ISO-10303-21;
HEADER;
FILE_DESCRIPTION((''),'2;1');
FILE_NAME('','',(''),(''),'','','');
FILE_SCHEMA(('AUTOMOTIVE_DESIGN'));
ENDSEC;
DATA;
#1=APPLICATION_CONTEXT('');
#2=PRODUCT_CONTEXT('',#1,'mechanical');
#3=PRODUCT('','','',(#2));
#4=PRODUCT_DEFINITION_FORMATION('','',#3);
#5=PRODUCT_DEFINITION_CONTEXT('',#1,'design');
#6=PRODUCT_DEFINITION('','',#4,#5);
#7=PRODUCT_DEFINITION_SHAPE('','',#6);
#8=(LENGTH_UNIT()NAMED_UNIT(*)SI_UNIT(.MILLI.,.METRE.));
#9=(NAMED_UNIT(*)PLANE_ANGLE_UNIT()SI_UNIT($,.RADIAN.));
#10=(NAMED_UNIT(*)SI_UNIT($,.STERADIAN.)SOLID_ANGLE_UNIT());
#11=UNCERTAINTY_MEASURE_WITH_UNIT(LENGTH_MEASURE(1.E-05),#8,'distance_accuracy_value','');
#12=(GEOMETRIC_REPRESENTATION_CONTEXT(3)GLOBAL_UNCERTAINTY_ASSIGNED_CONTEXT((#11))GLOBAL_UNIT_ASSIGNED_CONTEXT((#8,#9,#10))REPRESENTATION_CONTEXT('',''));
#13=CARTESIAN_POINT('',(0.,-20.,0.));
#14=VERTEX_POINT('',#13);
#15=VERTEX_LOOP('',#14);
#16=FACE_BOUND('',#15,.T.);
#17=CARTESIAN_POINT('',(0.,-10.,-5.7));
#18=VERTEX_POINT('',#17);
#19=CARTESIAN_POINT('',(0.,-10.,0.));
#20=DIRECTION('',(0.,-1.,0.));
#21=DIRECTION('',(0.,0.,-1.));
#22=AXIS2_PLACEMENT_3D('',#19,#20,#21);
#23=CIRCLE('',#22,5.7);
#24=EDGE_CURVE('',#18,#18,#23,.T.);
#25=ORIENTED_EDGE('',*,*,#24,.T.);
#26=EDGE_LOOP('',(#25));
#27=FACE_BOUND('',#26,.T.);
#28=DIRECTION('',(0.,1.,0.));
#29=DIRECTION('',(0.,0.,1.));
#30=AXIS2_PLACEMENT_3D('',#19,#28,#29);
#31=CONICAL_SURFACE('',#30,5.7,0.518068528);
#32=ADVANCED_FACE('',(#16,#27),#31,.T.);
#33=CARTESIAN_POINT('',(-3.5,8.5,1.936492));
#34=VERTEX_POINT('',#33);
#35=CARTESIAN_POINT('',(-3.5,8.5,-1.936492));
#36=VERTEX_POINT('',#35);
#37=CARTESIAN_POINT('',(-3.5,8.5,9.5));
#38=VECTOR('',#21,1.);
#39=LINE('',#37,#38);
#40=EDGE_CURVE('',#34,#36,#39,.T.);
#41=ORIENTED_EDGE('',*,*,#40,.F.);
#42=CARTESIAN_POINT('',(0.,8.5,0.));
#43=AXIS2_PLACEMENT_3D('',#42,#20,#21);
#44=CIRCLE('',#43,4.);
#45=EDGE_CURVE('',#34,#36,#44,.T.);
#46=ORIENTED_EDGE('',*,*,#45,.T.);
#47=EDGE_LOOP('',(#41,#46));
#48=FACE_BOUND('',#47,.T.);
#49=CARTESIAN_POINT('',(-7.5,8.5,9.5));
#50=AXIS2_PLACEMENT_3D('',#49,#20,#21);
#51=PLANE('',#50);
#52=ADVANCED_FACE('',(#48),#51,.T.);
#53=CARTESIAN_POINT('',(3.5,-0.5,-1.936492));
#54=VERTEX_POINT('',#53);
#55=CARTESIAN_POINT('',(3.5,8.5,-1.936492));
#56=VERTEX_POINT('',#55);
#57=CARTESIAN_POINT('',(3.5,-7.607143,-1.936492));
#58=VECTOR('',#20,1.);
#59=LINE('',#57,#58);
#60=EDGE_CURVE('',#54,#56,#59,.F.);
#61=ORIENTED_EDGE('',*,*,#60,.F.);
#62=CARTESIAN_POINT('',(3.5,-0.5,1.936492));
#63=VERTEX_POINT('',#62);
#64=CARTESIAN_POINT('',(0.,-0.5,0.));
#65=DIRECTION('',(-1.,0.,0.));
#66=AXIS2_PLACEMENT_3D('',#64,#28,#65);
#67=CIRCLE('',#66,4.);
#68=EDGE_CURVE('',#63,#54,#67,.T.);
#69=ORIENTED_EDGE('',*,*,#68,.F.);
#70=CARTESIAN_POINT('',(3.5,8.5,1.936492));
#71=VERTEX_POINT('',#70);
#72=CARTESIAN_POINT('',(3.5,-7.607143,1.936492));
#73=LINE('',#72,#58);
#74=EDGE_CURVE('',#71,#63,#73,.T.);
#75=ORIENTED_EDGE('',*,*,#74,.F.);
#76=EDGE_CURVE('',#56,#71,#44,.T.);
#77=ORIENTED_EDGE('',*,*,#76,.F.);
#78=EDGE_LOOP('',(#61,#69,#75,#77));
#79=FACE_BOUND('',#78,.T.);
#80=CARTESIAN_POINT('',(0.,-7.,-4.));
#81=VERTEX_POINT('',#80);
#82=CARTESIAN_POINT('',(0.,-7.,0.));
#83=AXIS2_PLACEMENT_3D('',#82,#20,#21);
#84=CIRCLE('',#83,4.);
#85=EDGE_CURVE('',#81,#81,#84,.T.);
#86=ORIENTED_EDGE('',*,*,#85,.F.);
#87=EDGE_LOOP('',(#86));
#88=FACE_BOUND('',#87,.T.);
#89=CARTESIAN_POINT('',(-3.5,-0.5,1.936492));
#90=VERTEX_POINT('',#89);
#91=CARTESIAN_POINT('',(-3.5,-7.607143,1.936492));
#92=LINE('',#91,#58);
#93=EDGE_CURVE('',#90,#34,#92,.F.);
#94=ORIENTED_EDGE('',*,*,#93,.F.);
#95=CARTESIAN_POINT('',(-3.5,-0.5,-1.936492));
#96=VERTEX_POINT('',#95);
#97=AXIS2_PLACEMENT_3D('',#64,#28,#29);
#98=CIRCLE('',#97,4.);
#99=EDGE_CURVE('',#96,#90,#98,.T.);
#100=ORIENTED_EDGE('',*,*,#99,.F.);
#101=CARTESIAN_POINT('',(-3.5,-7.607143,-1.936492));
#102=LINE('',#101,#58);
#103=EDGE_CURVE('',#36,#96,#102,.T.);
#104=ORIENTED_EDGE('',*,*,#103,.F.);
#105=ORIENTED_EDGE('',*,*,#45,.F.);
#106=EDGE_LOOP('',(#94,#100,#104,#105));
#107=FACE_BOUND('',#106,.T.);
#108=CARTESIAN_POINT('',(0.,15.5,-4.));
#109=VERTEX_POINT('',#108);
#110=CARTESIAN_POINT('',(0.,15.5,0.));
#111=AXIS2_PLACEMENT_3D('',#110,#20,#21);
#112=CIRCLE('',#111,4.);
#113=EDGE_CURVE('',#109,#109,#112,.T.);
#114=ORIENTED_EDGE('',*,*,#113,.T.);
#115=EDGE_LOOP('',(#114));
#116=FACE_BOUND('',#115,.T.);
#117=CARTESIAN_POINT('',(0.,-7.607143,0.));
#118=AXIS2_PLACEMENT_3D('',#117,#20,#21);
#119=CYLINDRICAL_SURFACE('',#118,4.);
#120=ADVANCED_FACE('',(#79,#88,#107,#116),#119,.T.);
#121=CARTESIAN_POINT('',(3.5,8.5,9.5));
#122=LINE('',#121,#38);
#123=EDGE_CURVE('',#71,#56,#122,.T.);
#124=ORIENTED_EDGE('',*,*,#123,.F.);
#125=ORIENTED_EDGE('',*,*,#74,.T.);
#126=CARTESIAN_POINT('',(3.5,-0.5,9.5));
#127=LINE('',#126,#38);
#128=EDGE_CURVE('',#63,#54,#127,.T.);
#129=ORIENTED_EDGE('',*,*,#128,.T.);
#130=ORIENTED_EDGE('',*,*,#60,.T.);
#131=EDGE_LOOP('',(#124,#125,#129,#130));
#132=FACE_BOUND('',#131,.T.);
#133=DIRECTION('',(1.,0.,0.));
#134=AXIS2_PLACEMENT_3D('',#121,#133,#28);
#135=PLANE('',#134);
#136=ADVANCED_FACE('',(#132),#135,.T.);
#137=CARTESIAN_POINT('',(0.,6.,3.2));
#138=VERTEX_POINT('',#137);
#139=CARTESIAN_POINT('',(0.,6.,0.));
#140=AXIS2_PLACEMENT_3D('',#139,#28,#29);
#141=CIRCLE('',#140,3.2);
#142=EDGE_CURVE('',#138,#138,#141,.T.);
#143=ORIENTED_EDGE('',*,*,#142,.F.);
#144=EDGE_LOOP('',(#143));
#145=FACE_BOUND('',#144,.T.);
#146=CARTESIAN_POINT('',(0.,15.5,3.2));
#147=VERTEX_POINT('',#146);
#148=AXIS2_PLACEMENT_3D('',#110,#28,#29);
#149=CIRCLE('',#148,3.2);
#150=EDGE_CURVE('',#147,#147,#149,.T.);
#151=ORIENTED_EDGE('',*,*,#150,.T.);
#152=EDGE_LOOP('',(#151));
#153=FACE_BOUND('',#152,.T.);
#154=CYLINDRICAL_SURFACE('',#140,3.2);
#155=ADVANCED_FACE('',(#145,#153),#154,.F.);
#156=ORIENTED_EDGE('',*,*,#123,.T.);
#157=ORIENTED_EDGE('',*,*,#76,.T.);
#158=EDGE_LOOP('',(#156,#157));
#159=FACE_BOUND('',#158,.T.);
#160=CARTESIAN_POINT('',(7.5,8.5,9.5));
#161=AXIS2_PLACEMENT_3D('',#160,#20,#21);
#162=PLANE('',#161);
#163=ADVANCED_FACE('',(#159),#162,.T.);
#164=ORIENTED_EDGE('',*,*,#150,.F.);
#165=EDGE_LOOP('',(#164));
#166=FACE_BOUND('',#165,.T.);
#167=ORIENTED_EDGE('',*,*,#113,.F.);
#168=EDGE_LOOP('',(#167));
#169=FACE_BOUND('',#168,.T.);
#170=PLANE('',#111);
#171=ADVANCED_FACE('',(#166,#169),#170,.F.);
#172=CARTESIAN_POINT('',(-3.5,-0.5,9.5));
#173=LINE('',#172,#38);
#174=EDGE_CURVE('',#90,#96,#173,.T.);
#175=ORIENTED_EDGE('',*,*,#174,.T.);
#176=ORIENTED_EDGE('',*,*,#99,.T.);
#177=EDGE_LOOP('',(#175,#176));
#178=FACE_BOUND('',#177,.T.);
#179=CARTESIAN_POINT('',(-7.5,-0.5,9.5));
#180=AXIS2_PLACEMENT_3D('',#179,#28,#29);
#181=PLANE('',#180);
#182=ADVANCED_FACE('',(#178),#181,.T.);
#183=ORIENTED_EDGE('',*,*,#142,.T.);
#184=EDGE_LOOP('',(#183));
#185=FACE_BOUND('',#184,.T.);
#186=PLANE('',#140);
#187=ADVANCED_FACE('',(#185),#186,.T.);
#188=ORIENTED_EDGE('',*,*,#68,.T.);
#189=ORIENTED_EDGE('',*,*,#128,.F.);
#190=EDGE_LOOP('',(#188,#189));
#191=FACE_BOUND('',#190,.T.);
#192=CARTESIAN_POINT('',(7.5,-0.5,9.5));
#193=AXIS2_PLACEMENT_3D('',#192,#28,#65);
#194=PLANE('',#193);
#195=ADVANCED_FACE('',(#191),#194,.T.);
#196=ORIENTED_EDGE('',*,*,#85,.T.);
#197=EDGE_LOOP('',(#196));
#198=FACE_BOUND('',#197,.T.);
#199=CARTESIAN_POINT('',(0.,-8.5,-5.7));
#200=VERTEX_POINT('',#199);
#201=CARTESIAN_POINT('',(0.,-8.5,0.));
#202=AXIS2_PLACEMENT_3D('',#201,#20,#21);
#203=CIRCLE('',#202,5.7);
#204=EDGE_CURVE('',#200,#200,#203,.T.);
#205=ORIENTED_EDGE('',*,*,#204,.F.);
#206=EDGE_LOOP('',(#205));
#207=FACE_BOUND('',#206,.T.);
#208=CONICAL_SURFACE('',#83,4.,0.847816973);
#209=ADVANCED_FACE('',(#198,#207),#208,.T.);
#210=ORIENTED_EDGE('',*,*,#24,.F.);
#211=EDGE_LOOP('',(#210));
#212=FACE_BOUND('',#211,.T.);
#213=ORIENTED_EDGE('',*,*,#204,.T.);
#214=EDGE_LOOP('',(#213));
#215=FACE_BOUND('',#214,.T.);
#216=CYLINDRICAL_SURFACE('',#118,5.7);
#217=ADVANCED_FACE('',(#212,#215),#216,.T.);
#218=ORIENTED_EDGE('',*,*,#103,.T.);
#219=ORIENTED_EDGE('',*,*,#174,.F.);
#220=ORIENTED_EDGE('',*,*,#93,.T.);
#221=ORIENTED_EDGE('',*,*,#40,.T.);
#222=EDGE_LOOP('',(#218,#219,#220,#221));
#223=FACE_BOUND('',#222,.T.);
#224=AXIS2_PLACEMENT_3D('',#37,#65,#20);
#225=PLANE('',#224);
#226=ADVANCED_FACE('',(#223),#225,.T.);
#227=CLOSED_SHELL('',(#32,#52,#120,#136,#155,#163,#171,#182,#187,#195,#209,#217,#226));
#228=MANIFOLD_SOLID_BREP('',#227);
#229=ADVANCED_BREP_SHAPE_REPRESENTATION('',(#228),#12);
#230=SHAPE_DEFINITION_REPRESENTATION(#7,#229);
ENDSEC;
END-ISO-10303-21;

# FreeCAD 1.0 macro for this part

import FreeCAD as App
import Part
import Sketcher
Q = App.Units.Quantity

doc = App.newDocument("Part")
params = doc.addObject("Spreadsheet::Sheet", "Params")
for row, (alias, value) in enumerate([
    ("sketch1_width", "4 mm"),
    ("sketch1_height", "22.5 mm"),
    ("sketch1_height2", "1.5 mm"),
    ("sketch1_height3", "35.5 mm"),
    ("revolution_angle", "360 deg"),
    ("sketch2_diameter", "6.4 mm"),
    ("pocket1_length", "9.5 mm"),
    ("sketch3_width", "4 mm"),
    ("sketch3_height", "9 mm"),
], start=1):
    params.set(f"A{row}", alias)
    params.set(f"B{row}", "=" + value)
    params.setAlias(f"B{row}", alias)

body = doc.addObject("PartDesign::Body", "Body")

# Sketch on XY plane
sketch1 = doc.addObject("Sketcher::SketchObject", "Sketch")
body.addObject(sketch1)
sketch1.AttachmentSupport = (doc.XY_Plane, [""])
sketch1.MapMode = "FlatFace"
sketch1.addGeometry([
    Part.LineSegment(App.Vector(0, 15.5, 0), App.Vector(-4, 15.5, 0)),  # 0
    Part.LineSegment(App.Vector(-4, 15.5, 0), App.Vector(-4, -7, 0)),  # 1
    Part.LineSegment(App.Vector(-4, -7, 0), App.Vector(-5.7, -8.5, 0)),  # 2
    Part.LineSegment(App.Vector(-5.7, -8.5, 0), App.Vector(-5.7, -10, 0)),  # 3
    Part.LineSegment(App.Vector(-5.7, -10, 0), App.Vector(0, -20, 0)),  # 4
    Part.LineSegment(App.Vector(0, -20, 0), App.Vector(0, 15.5, 0)),  # 5
], False)
sketch1.addConstraint([
    Sketcher.Constraint("Coincident", 0, 2, 1, 1),
    Sketcher.Constraint("Coincident", 1, 2, 2, 1),
    Sketcher.Constraint("Coincident", 2, 2, 3, 1),
    Sketcher.Constraint("Coincident", 3, 2, 4, 1),
    Sketcher.Constraint("Coincident", 4, 2, 5, 1),
    Sketcher.Constraint("Coincident", 5, 2, 0, 1),
    Sketcher.Constraint("Horizontal", 0),
    Sketcher.Constraint("Vertical", 1),
    Sketcher.Constraint("Vertical", 3),
    Sketcher.Constraint("Vertical", 5),
    Sketcher.Constraint("PointOnObject", 4, 2, -2),
    Sketcher.Constraint("DistanceX", 0, 2, 0, 1, Q("4 mm")),
    Sketcher.Constraint("DistanceY", 1, 2, 1, 1, Q("22.5 mm")),
    Sketcher.Constraint("DistanceY", 3, 2, 3, 1, Q("1.5 mm")),
    Sketcher.Constraint("DistanceY", 5, 1, 5, 2, Q("35.5 mm")),
    Sketcher.Constraint("DistanceY", 1, 2, -1, 1, Q("7 mm")),
    Sketcher.Constraint("DistanceY", 3, 2, -1, 1, Q("10 mm")),
    Sketcher.Constraint("DistanceX", 2, 2, -1, 1, Q("5.7 mm")),
])
sketch1.setExpression("Constraints[11]", "Params.sketch1_width")
sketch1.setExpression("Constraints[12]", "Params.sketch1_height")
sketch1.setExpression("Constraints[13]", "Params.sketch1_height2")
sketch1.setExpression("Constraints[14]", "Params.sketch1_height3")
revolution = doc.addObject("PartDesign::Revolution", "Revolution")
body.addObject(revolution)
revolution.Profile = sketch1
revolution.ReferenceAxis = (sketch1, ["V_Axis"])
revolution.setExpression("Angle", "Params.revolution_angle")

# Sketch on XZ plane
sketch2 = doc.addObject("Sketcher::SketchObject", "Sketch001")
body.addObject(sketch2)
sketch2.AttachmentSupport = (doc.XZ_Plane, [""])
sketch2.MapMode = "FlatFace"
sketch2.AttachmentOffset = App.Placement(App.Vector(0, 0, -15.5), App.Rotation())
sketch2.addGeometry(Part.Circle(App.Vector(0, 0, 0), App.Vector(0, 0, 1), 3.2), False)
sketch2.addConstraint([
    Sketcher.Constraint("Coincident", 0, 3, -1, 1),
    Sketcher.Constraint("Diameter", 0, Q("6.4 mm")),
])
sketch2.setExpression("Constraints[1]", "Params.sketch2_diameter")
pocket1 = doc.addObject("PartDesign::Pocket", "Pocket")
body.addObject(pocket1)
pocket1.Profile = sketch2
pocket1.setExpression("Length", "Params.pocket1_length")
pocket1.Reversed = True

# Sketch on XY plane
sketch3 = doc.addObject("Sketcher::SketchObject", "Sketch002")
body.addObject(sketch3)
sketch3.AttachmentSupport = (doc.XY_Plane, [""])
sketch3.MapMode = "FlatFace"
sketch3.addGeometry([
    Part.LineSegment(App.Vector(-7.5, 8.5, 0), App.Vector(-7.5, -0.5, 0)),  # 0
    Part.LineSegment(App.Vector(-7.5, -0.5, 0), App.Vector(-3.5, -0.5, 0)),  # 1
    Part.LineSegment(App.Vector(-3.5, -0.5, 0), App.Vector(-3.5, 8.5, 0)),  # 2
    Part.LineSegment(App.Vector(-3.5, 8.5, 0), App.Vector(-7.5, 8.5, 0)),  # 3
    Part.LineSegment(App.Vector(3.5, 8.5, 0), App.Vector(3.5, -0.5, 0)),  # 4
    Part.LineSegment(App.Vector(3.5, -0.5, 0), App.Vector(7.5, -0.5, 0)),  # 5
    Part.LineSegment(App.Vector(7.5, -0.5, 0), App.Vector(7.5, 8.5, 0)),  # 6
    Part.LineSegment(App.Vector(7.5, 8.5, 0), App.Vector(3.5, 8.5, 0)),  # 7
], False)
sketch3.addConstraint([
    Sketcher.Constraint("Coincident", 0, 2, 1, 1),
    Sketcher.Constraint("Coincident", 1, 2, 2, 1),
    Sketcher.Constraint("Coincident", 2, 2, 3, 1),
    Sketcher.Constraint("Coincident", 3, 2, 0, 1),
    Sketcher.Constraint("Coincident", 4, 2, 5, 1),
    Sketcher.Constraint("Coincident", 5, 2, 6, 1),
    Sketcher.Constraint("Coincident", 6, 2, 7, 1),
    Sketcher.Constraint("Coincident", 7, 2, 4, 1),
    Sketcher.Constraint("Vertical", 0),
    Sketcher.Constraint("Horizontal", 1),
    Sketcher.Constraint("Vertical", 2),
    Sketcher.Constraint("Horizontal", 3),
    Sketcher.Constraint("Vertical", 4),
    Sketcher.Constraint("Horizontal", 5),
    Sketcher.Constraint("Vertical", 6),
    Sketcher.Constraint("Horizontal", 7),
    Sketcher.Constraint("Symmetric", 1, 2, 4, 2, -2),
    Sketcher.Constraint("Symmetric", 3, 2, 6, 2, -2),
    Sketcher.Constraint("DistanceX", 1, 1, 1, 2, Q("4 mm")),
    Sketcher.Constraint("DistanceY", 0, 2, 0, 1, Q("9 mm")),
    Sketcher.Constraint("DistanceX", 1, 2, 4, 2, Q("7 mm")),
    Sketcher.Constraint("DistanceY", 0, 2, -1, 1, Q("0.5 mm")),
])
sketch3.setExpression("Constraints[18]", "Params.sketch3_width")
sketch3.setExpression("Constraints[19]", "Params.sketch3_height")
pocket2 = doc.addObject("PartDesign::Pocket", "Pocket001")
body.addObject(pocket2)
pocket2.Profile = sketch3
pocket2.Type = "ThroughAll"
pocket2.Midplane = True

doc.recompute()
